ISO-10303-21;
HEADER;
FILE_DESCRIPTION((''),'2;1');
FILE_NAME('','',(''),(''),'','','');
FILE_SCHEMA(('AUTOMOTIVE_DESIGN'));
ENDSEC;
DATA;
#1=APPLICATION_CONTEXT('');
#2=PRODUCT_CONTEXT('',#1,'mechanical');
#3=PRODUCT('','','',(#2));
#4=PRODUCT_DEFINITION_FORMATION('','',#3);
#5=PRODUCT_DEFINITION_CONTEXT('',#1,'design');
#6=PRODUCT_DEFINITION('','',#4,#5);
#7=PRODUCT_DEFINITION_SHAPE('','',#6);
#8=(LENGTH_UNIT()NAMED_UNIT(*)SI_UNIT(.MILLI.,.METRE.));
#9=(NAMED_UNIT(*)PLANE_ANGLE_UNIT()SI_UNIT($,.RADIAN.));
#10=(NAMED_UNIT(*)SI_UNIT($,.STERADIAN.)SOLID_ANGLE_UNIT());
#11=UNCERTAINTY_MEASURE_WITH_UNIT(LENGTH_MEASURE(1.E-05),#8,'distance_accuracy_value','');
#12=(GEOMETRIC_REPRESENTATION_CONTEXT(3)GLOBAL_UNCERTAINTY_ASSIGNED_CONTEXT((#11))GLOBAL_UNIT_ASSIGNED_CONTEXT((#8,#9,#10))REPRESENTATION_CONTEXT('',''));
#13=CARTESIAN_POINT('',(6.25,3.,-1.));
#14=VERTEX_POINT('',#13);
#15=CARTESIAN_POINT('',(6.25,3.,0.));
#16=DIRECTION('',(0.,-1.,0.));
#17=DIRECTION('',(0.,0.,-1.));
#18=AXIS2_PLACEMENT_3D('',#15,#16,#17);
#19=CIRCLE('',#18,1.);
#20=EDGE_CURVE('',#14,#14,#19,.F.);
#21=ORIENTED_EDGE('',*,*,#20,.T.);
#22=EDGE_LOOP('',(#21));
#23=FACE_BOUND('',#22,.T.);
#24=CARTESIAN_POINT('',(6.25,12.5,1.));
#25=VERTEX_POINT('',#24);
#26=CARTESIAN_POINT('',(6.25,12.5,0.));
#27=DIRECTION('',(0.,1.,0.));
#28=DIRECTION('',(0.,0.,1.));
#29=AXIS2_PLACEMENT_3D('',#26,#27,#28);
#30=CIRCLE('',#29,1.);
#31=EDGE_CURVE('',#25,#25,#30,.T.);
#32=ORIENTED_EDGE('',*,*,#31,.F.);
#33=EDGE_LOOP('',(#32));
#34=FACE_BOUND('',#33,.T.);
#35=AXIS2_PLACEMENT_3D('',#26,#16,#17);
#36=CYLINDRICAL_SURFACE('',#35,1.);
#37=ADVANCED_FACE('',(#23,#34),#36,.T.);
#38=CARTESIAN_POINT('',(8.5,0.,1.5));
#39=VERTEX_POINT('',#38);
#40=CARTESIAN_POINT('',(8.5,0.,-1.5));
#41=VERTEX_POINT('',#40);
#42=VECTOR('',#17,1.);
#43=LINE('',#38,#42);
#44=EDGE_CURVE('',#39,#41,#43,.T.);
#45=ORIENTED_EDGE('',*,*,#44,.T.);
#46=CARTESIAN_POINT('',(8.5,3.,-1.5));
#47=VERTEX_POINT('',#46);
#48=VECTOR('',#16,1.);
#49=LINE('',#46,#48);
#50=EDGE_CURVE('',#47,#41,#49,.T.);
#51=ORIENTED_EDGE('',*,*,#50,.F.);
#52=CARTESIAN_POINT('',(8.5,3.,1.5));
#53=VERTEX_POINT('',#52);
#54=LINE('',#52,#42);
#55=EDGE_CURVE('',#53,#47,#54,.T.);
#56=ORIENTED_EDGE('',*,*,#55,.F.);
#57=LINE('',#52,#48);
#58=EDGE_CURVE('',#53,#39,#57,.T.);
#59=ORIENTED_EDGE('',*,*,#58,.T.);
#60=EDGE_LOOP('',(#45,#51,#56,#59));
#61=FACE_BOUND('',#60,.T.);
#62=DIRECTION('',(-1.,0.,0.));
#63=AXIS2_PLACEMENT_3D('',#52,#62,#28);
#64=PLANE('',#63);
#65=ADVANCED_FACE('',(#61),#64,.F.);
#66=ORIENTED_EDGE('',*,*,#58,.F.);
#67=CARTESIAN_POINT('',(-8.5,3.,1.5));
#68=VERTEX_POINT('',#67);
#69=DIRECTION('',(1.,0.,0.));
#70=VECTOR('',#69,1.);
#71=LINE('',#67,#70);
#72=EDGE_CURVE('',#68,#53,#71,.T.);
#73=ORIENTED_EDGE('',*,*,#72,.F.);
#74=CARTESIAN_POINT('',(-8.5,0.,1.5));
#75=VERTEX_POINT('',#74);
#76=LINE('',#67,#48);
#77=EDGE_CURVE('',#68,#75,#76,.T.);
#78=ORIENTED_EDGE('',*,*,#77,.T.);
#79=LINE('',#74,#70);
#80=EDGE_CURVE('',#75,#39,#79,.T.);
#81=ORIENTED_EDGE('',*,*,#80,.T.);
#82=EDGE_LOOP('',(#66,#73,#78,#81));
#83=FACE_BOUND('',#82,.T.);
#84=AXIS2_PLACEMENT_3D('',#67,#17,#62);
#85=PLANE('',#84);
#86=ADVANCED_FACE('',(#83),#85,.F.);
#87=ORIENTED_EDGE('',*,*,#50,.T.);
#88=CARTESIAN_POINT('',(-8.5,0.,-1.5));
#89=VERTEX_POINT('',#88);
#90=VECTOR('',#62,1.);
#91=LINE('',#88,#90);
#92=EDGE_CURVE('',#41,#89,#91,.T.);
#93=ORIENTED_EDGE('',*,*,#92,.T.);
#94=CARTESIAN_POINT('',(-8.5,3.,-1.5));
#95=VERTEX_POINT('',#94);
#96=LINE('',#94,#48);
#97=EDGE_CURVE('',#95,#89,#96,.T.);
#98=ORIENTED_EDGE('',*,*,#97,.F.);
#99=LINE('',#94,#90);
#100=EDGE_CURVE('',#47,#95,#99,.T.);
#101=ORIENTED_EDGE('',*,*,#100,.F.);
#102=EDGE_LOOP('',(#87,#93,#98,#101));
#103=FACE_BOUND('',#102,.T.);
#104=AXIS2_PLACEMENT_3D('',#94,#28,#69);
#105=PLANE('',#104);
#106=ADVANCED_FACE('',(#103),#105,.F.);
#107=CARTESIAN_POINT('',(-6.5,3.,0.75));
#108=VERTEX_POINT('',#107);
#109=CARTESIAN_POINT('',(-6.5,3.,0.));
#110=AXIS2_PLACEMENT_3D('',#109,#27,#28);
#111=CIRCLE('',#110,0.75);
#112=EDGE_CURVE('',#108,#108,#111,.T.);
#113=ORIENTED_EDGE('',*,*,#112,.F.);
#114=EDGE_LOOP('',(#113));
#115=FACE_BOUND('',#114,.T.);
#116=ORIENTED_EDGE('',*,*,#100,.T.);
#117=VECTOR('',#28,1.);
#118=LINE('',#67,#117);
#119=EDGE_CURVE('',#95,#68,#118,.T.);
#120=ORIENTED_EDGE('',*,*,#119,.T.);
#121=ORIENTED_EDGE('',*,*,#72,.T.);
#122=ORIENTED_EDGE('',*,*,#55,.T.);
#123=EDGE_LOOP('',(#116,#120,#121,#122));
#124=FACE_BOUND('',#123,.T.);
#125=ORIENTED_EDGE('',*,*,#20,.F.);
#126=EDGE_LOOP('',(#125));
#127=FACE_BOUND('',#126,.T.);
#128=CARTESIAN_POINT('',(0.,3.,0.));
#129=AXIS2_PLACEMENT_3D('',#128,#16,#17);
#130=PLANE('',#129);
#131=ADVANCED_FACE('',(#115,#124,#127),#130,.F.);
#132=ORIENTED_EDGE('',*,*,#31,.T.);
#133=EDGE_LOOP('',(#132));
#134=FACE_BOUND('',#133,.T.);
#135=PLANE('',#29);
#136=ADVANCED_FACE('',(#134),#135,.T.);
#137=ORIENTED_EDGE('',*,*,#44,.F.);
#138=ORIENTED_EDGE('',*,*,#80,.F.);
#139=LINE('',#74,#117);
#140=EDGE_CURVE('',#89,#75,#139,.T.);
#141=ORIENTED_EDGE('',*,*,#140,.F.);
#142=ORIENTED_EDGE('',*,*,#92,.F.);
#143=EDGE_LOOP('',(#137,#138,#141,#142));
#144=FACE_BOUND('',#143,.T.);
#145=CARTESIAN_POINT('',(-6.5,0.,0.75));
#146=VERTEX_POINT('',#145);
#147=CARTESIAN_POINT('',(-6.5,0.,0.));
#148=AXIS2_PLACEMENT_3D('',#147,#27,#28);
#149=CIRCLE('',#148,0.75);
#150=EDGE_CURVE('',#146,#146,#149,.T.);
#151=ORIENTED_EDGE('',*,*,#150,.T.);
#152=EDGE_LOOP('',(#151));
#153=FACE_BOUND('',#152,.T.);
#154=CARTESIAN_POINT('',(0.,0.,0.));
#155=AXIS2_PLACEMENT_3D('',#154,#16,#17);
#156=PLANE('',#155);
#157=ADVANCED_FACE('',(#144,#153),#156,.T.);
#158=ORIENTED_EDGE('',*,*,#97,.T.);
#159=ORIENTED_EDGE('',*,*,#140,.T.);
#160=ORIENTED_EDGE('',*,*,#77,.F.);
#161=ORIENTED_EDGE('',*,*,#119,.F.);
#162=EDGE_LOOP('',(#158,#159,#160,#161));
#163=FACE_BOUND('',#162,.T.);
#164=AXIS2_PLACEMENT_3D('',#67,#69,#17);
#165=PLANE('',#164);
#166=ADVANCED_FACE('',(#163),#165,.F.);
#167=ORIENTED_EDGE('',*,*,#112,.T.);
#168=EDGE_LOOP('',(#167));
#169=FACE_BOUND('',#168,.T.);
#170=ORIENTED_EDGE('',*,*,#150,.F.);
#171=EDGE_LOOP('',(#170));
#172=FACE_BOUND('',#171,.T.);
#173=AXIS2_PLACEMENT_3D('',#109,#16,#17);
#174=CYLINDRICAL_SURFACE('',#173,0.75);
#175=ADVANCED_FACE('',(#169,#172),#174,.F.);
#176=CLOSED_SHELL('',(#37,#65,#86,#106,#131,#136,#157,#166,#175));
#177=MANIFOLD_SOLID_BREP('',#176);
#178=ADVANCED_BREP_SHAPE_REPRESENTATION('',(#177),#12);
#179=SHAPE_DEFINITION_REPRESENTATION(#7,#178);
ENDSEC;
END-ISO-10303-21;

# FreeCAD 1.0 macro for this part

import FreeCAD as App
import Part
import Sketcher


def add_polygon(sketch, points):
    """Adds a closed chain of lines whose ends are joined by coincident constraints."""
    first, n = sketch.GeometryCount, len(points)
    for a, b in zip(points, points[1:] + points[:1]):
        sketch.addGeometry(Part.LineSegment(App.Vector(*a, 0), App.Vector(*b, 0)), False)
    for i in range(n):
        sketch.addConstraint(Sketcher.Constraint("Coincident", first + i, 2, first + (i + 1) % n, 1))

doc = App.newDocument("Part")
body = doc.addObject("PartDesign::Body", "Body")

# Sketch on XZ plane
sketch1 = body.newObject("Sketcher::SketchObject", "Sketch")
sketch1.AttachmentSupport = (doc.getObject("XZ_Plane"), [""])
sketch1.MapMode = "FlatFace"
add_polygon(sketch1, [(-8.5, -1.5), (-8.5, 1.5), (8.5, 1.5), (8.5, -1.5)])  # lines 0-3
sketch1.addGeometry(Part.Circle(App.Vector(-6.5, 0, 0), App.Vector(0, 0, 1), 0.8), False)  # 4
sketch1.addConstraint([
    Sketcher.Constraint("Vertical", 0),
    Sketcher.Constraint("Horizontal", 1),
    Sketcher.Constraint("Vertical", 2),
    Sketcher.Constraint("Horizontal", 3),
    Sketcher.Constraint("Symmetric", 0, 2, 2, 2, -1, 1),
    Sketcher.Constraint("PointOnObject", 4, 3, -1),
    Sketcher.Constraint("Diameter", 4, 1.5),
    Sketcher.Constraint("DistanceX", 1, 1, 1, 2, 17.0),
    Sketcher.Constraint("DistanceY", 0, 1, 0, 2, 3.0),
    Sketcher.Constraint("DistanceX", 0, 2, 4, 3, 2.0),
])
pad1 = body.newObject("PartDesign::Pad", "Pad")
pad1.Profile = sketch1
pad1.Length = 3
pad1.Reversed = True

# Sketch on XZ plane
sketch2 = body.newObject("Sketcher::SketchObject", "Sketch001")
sketch2.AttachmentSupport = (doc.getObject("XZ_Plane"), [""])
sketch2.MapMode = "FlatFace"
sketch2.AttachmentOffset = App.Placement(App.Vector(0, 0, -3), App.Rotation())
sketch2.addGeometry(Part.Circle(App.Vector(6.2, 0, 0), App.Vector(0, 0, 1), 1), False)
sketch2.addConstraint([
    Sketcher.Constraint("PointOnObject", 0, 3, -1),
    Sketcher.Constraint("Diameter", 0, 2.0),
    Sketcher.Constraint("DistanceX", -1, 1, 0, 3, 6.25),
])
pad2 = body.newObject("PartDesign::Pad", "Pad001")
pad2.Profile = sketch2
pad2.Length = 9.5
pad2.Reversed = True

doc.recompute()
